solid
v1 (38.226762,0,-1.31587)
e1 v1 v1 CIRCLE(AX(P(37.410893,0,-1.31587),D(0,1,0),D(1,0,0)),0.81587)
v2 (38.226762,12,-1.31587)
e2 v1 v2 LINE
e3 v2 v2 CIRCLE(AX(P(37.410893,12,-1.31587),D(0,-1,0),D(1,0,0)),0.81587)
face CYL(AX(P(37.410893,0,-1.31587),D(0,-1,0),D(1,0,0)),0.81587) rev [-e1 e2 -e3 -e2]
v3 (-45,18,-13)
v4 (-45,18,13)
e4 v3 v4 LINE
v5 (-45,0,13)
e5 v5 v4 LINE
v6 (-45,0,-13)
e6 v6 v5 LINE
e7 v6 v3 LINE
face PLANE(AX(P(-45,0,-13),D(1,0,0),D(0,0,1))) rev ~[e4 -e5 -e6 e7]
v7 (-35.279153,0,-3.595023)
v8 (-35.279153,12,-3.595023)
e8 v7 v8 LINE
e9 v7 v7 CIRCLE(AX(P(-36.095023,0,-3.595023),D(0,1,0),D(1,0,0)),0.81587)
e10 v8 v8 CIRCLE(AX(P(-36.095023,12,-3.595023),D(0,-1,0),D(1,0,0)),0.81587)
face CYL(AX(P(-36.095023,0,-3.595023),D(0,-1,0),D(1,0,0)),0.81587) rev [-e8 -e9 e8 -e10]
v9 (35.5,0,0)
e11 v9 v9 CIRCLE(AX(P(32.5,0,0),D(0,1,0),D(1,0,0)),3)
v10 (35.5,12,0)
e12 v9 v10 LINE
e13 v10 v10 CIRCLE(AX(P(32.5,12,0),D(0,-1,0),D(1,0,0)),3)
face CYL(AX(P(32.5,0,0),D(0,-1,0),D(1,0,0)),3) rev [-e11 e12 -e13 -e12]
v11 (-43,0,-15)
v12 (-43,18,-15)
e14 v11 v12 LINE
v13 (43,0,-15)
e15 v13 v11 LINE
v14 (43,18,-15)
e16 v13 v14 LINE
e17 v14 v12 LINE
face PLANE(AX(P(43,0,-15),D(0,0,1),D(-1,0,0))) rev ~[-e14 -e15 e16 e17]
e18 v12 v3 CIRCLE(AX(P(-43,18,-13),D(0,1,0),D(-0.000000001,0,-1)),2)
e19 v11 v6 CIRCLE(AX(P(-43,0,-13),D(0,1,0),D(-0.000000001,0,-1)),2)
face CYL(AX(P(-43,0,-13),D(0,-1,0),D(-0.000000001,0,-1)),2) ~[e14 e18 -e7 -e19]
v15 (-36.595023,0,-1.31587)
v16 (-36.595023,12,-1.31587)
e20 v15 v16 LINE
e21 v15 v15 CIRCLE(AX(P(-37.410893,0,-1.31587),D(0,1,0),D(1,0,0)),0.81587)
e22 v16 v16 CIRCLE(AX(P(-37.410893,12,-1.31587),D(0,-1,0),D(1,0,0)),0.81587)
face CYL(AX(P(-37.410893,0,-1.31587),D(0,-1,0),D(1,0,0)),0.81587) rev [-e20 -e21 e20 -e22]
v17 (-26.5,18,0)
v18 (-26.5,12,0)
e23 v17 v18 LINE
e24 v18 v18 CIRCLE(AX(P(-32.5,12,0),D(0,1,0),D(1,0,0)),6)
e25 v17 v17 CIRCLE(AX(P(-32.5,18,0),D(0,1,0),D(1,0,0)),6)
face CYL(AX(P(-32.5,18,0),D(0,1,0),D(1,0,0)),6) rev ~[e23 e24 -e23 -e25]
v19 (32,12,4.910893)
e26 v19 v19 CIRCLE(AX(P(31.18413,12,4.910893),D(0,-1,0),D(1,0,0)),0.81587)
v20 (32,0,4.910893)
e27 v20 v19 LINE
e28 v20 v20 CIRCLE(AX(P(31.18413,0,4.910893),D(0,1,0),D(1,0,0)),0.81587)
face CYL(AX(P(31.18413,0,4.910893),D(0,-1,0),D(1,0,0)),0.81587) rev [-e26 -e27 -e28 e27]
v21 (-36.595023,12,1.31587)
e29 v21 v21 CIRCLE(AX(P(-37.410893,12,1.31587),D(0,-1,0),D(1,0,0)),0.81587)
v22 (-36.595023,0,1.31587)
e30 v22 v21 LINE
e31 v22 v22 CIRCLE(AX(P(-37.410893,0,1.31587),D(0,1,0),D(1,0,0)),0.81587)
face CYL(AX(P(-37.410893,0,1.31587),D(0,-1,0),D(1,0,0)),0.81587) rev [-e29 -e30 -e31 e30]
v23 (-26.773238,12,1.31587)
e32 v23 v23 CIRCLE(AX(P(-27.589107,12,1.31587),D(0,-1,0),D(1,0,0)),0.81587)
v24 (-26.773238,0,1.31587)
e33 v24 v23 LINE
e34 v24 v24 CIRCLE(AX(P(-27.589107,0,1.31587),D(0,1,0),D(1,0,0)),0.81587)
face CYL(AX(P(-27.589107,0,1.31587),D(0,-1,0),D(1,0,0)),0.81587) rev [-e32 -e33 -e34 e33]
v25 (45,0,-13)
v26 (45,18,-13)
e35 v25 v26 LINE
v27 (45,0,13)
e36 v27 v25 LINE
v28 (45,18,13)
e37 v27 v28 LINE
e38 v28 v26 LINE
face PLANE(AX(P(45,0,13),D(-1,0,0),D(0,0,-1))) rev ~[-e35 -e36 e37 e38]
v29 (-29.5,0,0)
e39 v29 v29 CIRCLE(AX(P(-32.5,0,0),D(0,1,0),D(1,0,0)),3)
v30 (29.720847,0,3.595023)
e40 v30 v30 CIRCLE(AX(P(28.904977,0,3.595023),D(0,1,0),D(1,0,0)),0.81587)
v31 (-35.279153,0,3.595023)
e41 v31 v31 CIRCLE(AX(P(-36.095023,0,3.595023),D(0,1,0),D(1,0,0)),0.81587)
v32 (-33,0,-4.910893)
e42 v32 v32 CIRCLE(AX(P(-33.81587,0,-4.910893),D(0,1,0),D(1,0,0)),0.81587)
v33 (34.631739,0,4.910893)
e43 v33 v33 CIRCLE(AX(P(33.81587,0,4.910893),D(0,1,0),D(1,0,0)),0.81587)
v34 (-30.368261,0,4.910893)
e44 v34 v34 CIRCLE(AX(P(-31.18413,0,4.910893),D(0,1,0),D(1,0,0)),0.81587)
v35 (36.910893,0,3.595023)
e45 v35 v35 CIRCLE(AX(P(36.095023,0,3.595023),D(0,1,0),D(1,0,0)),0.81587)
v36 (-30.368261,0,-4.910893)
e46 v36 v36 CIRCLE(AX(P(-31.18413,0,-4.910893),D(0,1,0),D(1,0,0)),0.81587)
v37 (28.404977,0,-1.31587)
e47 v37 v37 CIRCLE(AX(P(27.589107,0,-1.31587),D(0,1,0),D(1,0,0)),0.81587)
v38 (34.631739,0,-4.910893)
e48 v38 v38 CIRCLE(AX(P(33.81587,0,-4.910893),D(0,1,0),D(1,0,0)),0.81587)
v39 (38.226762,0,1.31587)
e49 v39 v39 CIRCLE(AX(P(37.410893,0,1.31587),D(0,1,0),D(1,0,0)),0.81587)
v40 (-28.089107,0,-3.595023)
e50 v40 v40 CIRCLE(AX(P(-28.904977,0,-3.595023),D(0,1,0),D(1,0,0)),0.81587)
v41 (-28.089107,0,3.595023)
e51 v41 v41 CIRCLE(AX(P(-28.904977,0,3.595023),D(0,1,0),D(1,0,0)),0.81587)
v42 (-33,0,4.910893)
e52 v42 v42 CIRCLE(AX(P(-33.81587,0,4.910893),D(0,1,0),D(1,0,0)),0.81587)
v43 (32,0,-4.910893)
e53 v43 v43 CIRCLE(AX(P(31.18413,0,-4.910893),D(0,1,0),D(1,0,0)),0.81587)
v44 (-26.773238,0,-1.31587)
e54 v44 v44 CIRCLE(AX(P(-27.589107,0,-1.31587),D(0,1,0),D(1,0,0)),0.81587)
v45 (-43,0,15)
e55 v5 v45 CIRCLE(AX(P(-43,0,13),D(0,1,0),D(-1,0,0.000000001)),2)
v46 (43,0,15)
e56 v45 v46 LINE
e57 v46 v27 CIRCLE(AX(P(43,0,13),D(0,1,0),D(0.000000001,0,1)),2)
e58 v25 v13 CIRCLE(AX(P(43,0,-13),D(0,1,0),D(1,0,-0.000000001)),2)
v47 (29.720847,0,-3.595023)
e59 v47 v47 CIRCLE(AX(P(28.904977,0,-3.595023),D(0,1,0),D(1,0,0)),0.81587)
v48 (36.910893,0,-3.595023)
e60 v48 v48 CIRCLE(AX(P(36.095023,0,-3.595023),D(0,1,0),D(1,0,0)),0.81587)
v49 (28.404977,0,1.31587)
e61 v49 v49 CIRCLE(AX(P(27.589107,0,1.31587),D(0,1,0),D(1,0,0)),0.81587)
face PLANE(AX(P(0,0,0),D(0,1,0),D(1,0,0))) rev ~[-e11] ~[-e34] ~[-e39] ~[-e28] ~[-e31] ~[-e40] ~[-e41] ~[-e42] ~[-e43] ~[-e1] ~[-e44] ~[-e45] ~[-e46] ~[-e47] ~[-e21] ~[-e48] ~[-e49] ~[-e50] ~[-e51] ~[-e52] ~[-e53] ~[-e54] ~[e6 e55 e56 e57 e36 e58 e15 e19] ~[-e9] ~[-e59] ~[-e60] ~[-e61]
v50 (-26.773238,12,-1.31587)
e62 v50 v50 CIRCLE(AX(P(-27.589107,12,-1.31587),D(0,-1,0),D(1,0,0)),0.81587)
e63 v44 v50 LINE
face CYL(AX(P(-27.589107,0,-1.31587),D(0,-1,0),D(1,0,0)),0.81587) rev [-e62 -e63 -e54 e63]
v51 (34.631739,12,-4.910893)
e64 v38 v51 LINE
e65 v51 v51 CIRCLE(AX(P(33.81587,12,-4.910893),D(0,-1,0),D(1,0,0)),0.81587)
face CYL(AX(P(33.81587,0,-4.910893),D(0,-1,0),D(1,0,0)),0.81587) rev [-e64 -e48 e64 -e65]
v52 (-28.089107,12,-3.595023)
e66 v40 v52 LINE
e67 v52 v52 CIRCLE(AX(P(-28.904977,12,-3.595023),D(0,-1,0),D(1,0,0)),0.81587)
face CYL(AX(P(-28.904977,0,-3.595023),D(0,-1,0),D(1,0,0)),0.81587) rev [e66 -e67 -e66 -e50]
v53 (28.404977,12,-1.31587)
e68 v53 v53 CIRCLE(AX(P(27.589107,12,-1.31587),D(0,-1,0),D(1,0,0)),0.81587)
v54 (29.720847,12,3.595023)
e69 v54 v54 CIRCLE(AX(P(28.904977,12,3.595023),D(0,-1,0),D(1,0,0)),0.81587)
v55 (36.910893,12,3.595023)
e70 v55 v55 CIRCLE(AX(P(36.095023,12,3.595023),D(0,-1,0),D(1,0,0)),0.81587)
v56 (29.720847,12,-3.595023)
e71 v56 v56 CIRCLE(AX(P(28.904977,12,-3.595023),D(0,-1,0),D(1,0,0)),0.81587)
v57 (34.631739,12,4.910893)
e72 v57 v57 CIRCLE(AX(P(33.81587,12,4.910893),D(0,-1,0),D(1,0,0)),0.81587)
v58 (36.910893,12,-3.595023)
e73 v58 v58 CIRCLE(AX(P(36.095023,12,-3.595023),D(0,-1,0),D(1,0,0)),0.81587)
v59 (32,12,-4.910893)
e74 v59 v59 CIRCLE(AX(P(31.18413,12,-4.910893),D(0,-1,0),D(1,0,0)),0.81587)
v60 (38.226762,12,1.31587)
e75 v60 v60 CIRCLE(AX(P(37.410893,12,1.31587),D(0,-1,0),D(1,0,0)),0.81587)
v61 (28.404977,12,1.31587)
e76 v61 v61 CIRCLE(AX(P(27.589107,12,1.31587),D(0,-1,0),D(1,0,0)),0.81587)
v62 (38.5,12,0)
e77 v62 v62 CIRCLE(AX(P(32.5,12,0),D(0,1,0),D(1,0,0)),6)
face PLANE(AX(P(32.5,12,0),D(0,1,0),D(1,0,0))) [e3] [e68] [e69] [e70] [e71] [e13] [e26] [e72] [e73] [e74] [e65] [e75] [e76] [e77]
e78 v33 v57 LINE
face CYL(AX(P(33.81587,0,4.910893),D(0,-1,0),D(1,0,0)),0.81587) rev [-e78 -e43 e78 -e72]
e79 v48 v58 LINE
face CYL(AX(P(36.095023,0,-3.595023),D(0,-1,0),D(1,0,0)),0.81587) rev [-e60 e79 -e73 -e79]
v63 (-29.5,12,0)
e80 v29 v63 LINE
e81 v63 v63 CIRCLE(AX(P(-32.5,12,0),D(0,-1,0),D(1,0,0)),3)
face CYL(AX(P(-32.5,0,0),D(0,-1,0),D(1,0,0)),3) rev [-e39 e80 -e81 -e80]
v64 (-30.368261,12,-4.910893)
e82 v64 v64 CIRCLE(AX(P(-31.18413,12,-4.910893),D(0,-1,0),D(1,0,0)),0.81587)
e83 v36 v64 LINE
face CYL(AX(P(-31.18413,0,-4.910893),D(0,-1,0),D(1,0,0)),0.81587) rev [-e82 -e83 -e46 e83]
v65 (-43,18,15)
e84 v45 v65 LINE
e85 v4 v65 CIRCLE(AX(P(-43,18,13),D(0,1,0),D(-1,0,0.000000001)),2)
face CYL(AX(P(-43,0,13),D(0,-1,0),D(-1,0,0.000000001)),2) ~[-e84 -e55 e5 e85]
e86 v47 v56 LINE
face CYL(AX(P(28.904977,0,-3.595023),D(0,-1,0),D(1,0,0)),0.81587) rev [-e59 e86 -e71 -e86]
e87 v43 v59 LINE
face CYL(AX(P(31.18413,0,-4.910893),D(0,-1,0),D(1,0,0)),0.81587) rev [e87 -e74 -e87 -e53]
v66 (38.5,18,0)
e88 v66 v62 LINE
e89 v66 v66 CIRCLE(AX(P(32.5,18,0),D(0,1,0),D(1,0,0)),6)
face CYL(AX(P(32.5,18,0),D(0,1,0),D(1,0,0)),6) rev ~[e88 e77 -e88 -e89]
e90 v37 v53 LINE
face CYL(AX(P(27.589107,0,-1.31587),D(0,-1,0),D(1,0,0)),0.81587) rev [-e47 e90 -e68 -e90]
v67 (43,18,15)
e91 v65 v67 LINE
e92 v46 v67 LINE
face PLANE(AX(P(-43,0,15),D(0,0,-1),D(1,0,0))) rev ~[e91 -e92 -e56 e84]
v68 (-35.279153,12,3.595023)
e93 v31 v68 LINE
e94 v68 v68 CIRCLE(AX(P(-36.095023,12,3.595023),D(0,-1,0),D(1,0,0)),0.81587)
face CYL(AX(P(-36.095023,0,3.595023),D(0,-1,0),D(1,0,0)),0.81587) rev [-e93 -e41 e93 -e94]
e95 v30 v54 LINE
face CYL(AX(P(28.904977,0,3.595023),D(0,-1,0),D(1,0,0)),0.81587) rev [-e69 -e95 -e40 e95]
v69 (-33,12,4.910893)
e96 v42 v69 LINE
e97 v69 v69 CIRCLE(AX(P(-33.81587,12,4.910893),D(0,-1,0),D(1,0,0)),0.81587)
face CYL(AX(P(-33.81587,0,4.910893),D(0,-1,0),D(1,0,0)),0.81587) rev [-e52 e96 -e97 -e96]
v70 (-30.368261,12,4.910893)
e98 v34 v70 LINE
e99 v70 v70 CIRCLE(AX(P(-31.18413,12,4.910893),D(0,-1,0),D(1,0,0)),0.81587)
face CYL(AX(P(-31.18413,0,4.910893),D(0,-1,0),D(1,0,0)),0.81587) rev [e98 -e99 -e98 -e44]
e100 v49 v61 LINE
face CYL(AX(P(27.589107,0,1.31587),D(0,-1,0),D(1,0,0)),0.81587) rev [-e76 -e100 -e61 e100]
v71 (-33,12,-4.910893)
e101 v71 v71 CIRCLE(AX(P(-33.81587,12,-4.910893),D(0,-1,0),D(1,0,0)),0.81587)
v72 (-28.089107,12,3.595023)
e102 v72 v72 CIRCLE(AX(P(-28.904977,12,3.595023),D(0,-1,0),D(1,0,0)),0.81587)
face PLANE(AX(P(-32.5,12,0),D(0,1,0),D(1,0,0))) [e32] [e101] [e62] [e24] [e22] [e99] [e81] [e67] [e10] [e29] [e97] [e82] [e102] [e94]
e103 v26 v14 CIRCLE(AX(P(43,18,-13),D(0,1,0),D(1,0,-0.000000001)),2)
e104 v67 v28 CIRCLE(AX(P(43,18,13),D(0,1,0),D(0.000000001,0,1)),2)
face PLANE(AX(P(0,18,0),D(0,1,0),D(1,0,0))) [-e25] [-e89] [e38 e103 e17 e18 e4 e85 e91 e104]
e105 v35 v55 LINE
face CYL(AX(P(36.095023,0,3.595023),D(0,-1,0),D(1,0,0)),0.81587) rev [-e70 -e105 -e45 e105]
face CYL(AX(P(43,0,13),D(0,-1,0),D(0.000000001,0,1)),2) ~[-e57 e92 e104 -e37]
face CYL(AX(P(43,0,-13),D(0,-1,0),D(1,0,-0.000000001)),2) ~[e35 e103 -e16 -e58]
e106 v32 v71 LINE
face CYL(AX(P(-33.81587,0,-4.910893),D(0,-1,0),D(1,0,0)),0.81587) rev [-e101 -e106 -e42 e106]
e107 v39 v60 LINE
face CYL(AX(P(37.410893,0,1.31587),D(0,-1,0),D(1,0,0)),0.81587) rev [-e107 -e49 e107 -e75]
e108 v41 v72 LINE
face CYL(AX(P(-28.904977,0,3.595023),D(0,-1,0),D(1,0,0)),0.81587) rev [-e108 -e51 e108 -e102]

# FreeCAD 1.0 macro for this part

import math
import FreeCAD as App
import Part
import Sketcher
Q = App.Units.Quantity

doc = App.newDocument("Part")
params = doc.addObject("Spreadsheet::Sheet", "Params")
for row, (alias, value) in enumerate([
    ("sketch1_diameter", "6 mm"),
    ("sketch1_radius", "2 mm"),
    ("sketch1_width", "86 mm"),
    ("sketch1_height", "26 mm"),
    ("pad1_length", "18 mm"),
    ("sketch2_diameter", "12 mm"),
    ("pocket1_length", "6 mm"),
], start=1):
    params.set(f"A{row}", alias)
    params.set(f"B{row}", "=" + value)
    params.setAlias(f"B{row}", alias)

body = doc.addObject("PartDesign::Body", "Body")

# Sketch on XZ plane
sketch1 = body.newObject("Sketcher::SketchObject", "Sketch")
sketch1.AttachmentSupport = (doc.getObject("XZ_Plane"), [""])
sketch1.MapMode = "FlatFace"
sketch1.addGeometry([
    Part.LineSegment(App.Vector(-45, -13, 0), App.Vector(-45, 13, 0)),  # 0
    Part.ArcOfCircle(Part.Circle(App.Vector(-43, 13, 0), App.Vector(0, 0, 1), 2), math.radians(90), math.radians(180)),  # 1
    Part.LineSegment(App.Vector(-43, 15, 0), App.Vector(43, 15, 0)),  # 2
    Part.ArcOfCircle(Part.Circle(App.Vector(43, 13, 0), App.Vector(0, 0, 1), 2), math.radians(0), math.radians(90)),  # 3
    Part.LineSegment(App.Vector(45, 13, 0), App.Vector(45, -13, 0)),  # 4
    Part.ArcOfCircle(Part.Circle(App.Vector(43, -13, 0), App.Vector(0, 0, 1), 2), math.radians(-90), math.radians(0)),  # 5
    Part.LineSegment(App.Vector(43, -15, 0), App.Vector(-43, -15, 0)),  # 6
    Part.ArcOfCircle(Part.Circle(App.Vector(-43, -13, 0), App.Vector(0, 0, 1), 2), math.radians(-180), math.radians(-90)),  # 7
    Part.Circle(App.Vector(-33.8, 4.9, 0), App.Vector(0, 0, 1), 0.8),  # 8
    Part.Circle(App.Vector(-31.2, 4.9, 0), App.Vector(0, 0, 1), 0.8),  # 9
    Part.Circle(App.Vector(-36.1, 3.6, 0), App.Vector(0, 0, 1), 0.8),  # 10
    Part.Circle(App.Vector(-28.9, 3.6, 0), App.Vector(0, 0, 1), 0.8),  # 11
    Part.Circle(App.Vector(-37.4, 1.3, 0), App.Vector(0, 0, 1), 0.8),  # 12
    Part.Circle(App.Vector(-27.6, 1.3, 0), App.Vector(0, 0, 1), 0.8),  # 13
    Part.Circle(App.Vector(31.2, 4.9, 0), App.Vector(0, 0, 1), 0.8),  # 14
    Part.Circle(App.Vector(33.8, 4.9, 0), App.Vector(0, 0, 1), 0.8),  # 15
    Part.Circle(App.Vector(28.9, 3.6, 0), App.Vector(0, 0, 1), 0.8),  # 16
    Part.Circle(App.Vector(36.1, 3.6, 0), App.Vector(0, 0, 1), 0.8),  # 17
    Part.Circle(App.Vector(27.6, 1.3, 0), App.Vector(0, 0, 1), 0.8),  # 18
    Part.Circle(App.Vector(37.4, 1.3, 0), App.Vector(0, 0, 1), 0.8),  # 19
    Part.Circle(App.Vector(-32.5, 0, 0), App.Vector(0, 0, 1), 3),  # 20
    Part.Circle(App.Vector(-37.4, -1.3, 0), App.Vector(0, 0, 1), 0.8),  # 21
    Part.Circle(App.Vector(-27.6, -1.3, 0), App.Vector(0, 0, 1), 0.8),  # 22
    Part.Circle(App.Vector(-36.1, -3.6, 0), App.Vector(0, 0, 1), 0.8),  # 23
    Part.Circle(App.Vector(-28.9, -3.6, 0), App.Vector(0, 0, 1), 0.8),  # 24
    Part.Circle(App.Vector(-33.8, -4.9, 0), App.Vector(0, 0, 1), 0.8),  # 25
    Part.Circle(App.Vector(-31.2, -4.9, 0), App.Vector(0, 0, 1), 0.8),  # 26
    Part.Circle(App.Vector(27.6, -1.3, 0), App.Vector(0, 0, 1), 0.8),  # 27
    Part.Circle(App.Vector(32.5, 0, 0), App.Vector(0, 0, 1), 3),  # 28
    Part.Circle(App.Vector(37.4, -1.3, 0), App.Vector(0, 0, 1), 0.8),  # 29
    Part.Circle(App.Vector(28.9, -3.6, 0), App.Vector(0, 0, 1), 0.8),  # 30
    Part.Circle(App.Vector(36.1, -3.6, 0), App.Vector(0, 0, 1), 0.8),  # 31
    Part.Circle(App.Vector(31.2, -4.9, 0), App.Vector(0, 0, 1), 0.8),  # 32
    Part.Circle(App.Vector(33.8, -4.9, 0), App.Vector(0, 0, 1), 0.8),  # 33
], False)
sketch1.addConstraint([
    Sketcher.Constraint("Tangent", 0, 2, 1, 2),
    Sketcher.Constraint("Tangent", 1, 1, 2, 1),
    Sketcher.Constraint("Tangent", 2, 2, 3, 2),
    Sketcher.Constraint("Tangent", 3, 1, 4, 1),
    Sketcher.Constraint("Tangent", 4, 2, 5, 2),
    Sketcher.Constraint("Tangent", 5, 1, 6, 1),
    Sketcher.Constraint("Tangent", 6, 2, 7, 2),
    Sketcher.Constraint("Tangent", 7, 1, 0, 1),
    Sketcher.Constraint("Vertical", 0),
    Sketcher.Constraint("Horizontal", 2),
    Sketcher.Constraint("Vertical", 4),
    Sketcher.Constraint("Horizontal", 6),
    Sketcher.Constraint("Equal", 1, 3),
    Sketcher.Constraint("Equal", 3, 5),
    Sketcher.Constraint("Equal", 5, 7),
    Sketcher.Constraint("Equal", 8, 9),
    Sketcher.Constraint("Equal", 9, 10),
    Sketcher.Constraint("Equal", 10, 11),
    Sketcher.Constraint("Equal", 11, 12),
    Sketcher.Constraint("Equal", 12, 13),
    Sketcher.Constraint("Equal", 13, 14),
    Sketcher.Constraint("Equal", 14, 15),
    Sketcher.Constraint("Equal", 15, 16),
    Sketcher.Constraint("Equal", 16, 17),
    Sketcher.Constraint("Equal", 17, 18),
    Sketcher.Constraint("Equal", 18, 19),
    Sketcher.Constraint("Equal", 19, 21),
    Sketcher.Constraint("Equal", 21, 22),
    Sketcher.Constraint("Equal", 22, 23),
    Sketcher.Constraint("Equal", 23, 24),
    Sketcher.Constraint("Equal", 24, 25),
    Sketcher.Constraint("Equal", 25, 26),
    Sketcher.Constraint("Equal", 26, 27),
    Sketcher.Constraint("Equal", 20, 28),
    Sketcher.Constraint("Equal", 27, 29),
    Sketcher.Constraint("Equal", 29, 30),
    Sketcher.Constraint("Equal", 30, 31),
    Sketcher.Constraint("Equal", 31, 32),
    Sketcher.Constraint("Equal", 32, 33),
    Sketcher.Constraint("Symmetric", 1, 3, 5, 3, -1, 1),
    Sketcher.Constraint("Symmetric", 19, 3, 21, 3, -1, 1),
    Sketcher.Constraint("Symmetric", 18, 3, 22, 3, -1, 1),
    Sketcher.Constraint("Symmetric", 17, 3, 23, 3, -1, 1),
    Sketcher.Constraint("Symmetric", 16, 3, 24, 3, -1, 1),
    Sketcher.Constraint("Symmetric", 15, 3, 25, 3, -1, 1),
    Sketcher.Constraint("Symmetric", 14, 3, 26, 3, -1, 1),
    Sketcher.Constraint("Symmetric", 13, 3, 27, 3, -1, 1),
    Sketcher.Constraint("Symmetric", 20, 3, 28, 3, -1, 1),
    Sketcher.Constraint("Symmetric", 12, 3, 29, 3, -1, 1),
    Sketcher.Constraint("Symmetric", 11, 3, 30, 3, -1, 1),
    Sketcher.Constraint("Symmetric", 10, 3, 31, 3, -1, 1),
    Sketcher.Constraint("Symmetric", 9, 3, 32, 3, -1, 1),
    Sketcher.Constraint("Symmetric", 8, 3, 33, 3, -1, 1),
    Sketcher.Constraint("Symmetric", 9, 3, 14, 3, -2),
    Sketcher.Constraint("Symmetric", 8, 3, 15, 3, -2),
    Sketcher.Constraint("Symmetric", 11, 3, 16, 3, -2),
    Sketcher.Constraint("Symmetric", 10, 3, 17, 3, -2),
    Sketcher.Constraint("Symmetric", 13, 3, 18, 3, -2),
    Sketcher.Constraint("Symmetric", 12, 3, 19, 3, -2),
    Sketcher.Constraint("PointOnObject", 20, 3, -1),
    Sketcher.Constraint("Horizontal", 8, 3, 9, 3),
    Sketcher.Constraint("Horizontal", 10, 3, 11, 3),
    Sketcher.Constraint("Horizontal", 12, 3, 13, 3),
    Sketcher.Constraint("Diameter", 20, Q("6 mm")),
    Sketcher.Constraint("Radius", 1, Q("2 mm")),
    Sketcher.Constraint("DistanceX", 2, 1, 2, 2, Q("86 mm")),
    Sketcher.Constraint("DistanceY", 0, 1, 0, 2, Q("26 mm")),
    Sketcher.Constraint("DistanceX", 20, 3, -1, 1, Q("32.5 mm")),
    Sketcher.Constraint("Diameter", 8, Q("1.631739 mm")),
    Sketcher.Constraint("DistanceX", 8, 3, -1, 1, Q("33.81587 mm")),
    Sketcher.Constraint("DistanceX", 9, 3, -1, 1, Q("31.18413 mm")),
    Sketcher.Constraint("DistanceY", -1, 1, 12, 3, Q("1.31587 mm")),
    Sketcher.Constraint("DistanceY", 10, 3, 8, 3, Q("1.31587 mm")),
    Sketcher.Constraint("DistanceX", 12, 3, 10, 3, Q("1.31587 mm")),
    Sketcher.Constraint("DistanceX", 11, 3, 13, 3, Q("1.31587 mm")),
    Sketcher.Constraint("DistanceY", -1, 1, 8, 3, Q("4.910893 mm")),
    Sketcher.Constraint("DistanceX", 10, 3, -1, 1, Q("36.095023 mm")),
    Sketcher.Constraint("DistanceX", 11, 3, -1, 1, Q("28.904977 mm")),
])
sketch1.setExpression("Constraints[63]", "Params.sketch1_diameter")
sketch1.setExpression("Constraints[64]", "Params.sketch1_radius")
sketch1.setExpression("Constraints[65]", "Params.sketch1_width")
sketch1.setExpression("Constraints[66]", "Params.sketch1_height")
pad1 = body.newObject("PartDesign::Pad", "Pad")
pad1.Profile = sketch1
pad1.setExpression("Length", "Params.pad1_length")
pad1.Reversed = True

# Sketch on XZ plane
sketch2 = body.newObject("Sketcher::SketchObject", "Sketch001")
sketch2.AttachmentSupport = (doc.getObject("XZ_Plane"), [""])
sketch2.MapMode = "FlatFace"
sketch2.AttachmentOffset = App.Placement(App.Vector(0, 0, -18), App.Rotation())
sketch2.addGeometry([
    Part.Circle(App.Vector(32, 0, 0), App.Vector(0, 0, 1), 6),
    Part.Circle(App.Vector(-32, 0, 0), App.Vector(0, 0, 1), 6),
], False)
sketch2.addConstraint([
    Sketcher.Constraint("Equal", 0, 1),
    Sketcher.Constraint("Symmetric", 0, 3, 1, 3, -1, 1),
    Sketcher.Constraint("PointOnObject", 0, 3, -1),
    Sketcher.Constraint("Diameter", 0, Q("12 mm")),
    Sketcher.Constraint("DistanceX", 1, 3, 0, 3, Q("65 mm")),
])
sketch2.setExpression("Constraints[3]", "Params.sketch2_diameter")
pocket1 = body.newObject("PartDesign::Pocket", "Pocket")
pocket1.Profile = sketch2
pocket1.setExpression("Length", "Params.pocket1_length")
pocket1.Reversed = True

doc.recompute()
